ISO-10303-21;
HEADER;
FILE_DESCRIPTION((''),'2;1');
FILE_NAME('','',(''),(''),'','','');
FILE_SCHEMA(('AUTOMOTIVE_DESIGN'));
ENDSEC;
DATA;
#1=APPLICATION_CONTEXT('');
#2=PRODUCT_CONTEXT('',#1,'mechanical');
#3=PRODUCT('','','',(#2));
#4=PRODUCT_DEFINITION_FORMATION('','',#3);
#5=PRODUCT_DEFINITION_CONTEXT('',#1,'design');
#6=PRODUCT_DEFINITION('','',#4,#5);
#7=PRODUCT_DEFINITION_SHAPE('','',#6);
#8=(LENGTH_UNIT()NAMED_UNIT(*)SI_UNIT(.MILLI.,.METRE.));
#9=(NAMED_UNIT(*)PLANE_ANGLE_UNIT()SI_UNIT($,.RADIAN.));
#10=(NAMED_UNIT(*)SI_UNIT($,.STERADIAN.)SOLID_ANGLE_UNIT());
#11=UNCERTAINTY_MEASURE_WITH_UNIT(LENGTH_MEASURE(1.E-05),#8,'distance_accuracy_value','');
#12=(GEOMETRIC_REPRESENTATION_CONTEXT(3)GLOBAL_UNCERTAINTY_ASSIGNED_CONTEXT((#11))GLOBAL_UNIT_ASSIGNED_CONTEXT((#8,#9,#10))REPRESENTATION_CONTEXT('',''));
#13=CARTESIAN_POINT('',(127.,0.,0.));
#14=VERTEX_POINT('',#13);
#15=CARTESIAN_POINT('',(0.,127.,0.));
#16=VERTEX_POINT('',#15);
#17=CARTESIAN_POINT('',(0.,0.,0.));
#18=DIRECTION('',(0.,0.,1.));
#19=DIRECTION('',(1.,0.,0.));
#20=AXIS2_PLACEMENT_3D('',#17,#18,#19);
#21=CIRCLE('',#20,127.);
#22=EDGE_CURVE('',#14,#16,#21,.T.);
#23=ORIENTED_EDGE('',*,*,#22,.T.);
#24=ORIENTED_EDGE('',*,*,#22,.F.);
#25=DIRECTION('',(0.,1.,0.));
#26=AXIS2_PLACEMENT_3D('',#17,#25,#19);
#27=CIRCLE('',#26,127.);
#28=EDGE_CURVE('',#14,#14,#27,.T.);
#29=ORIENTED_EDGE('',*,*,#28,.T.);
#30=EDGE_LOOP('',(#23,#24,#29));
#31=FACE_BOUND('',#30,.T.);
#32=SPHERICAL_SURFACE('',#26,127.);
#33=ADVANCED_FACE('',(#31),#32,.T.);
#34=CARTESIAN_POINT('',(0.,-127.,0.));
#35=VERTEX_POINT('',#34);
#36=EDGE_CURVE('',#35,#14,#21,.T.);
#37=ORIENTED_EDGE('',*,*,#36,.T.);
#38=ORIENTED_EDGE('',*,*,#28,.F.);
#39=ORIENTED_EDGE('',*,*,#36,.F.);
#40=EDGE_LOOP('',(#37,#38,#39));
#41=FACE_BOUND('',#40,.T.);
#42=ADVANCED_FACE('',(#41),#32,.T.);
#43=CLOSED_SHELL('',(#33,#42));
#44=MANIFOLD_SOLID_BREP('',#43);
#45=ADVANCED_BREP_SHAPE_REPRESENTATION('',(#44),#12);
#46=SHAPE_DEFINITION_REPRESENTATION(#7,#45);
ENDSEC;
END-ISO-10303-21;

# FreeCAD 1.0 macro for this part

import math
import FreeCAD as App
import Part
import Sketcher

V = App.Vector
Q = App.Units.Quantity

doc = App.newDocument("Part")
body = doc.addObject("PartDesign::Body", "Body")

sketch1 = body.newObject("Sketcher::SketchObject", "Sketch")
sketch1.AttachmentSupport = (doc.getObject("XY_Plane"), [""])
sketch1.MapMode = "FlatFace"
sketch1.addGeometry([
    Part.ArcOfCircle(Part.Circle(V(0, 0, 0), V(0, 0, 1), 127), math.radians(-90), math.radians(90)),
    Part.LineSegment(V(0, 127, 0), V(0, -127, 0)),
], False)
sketch1.addConstraint([
    Sketcher.Constraint("Coincident", 0, 1, 1, 2),
    Sketcher.Constraint("Coincident", 1, 1, 0, 2),
    Sketcher.Constraint("Vertical", 1),
    Sketcher.Constraint("Coincident", 0, 3, -1, 1),
    Sketcher.Constraint("PointOnObject", 0, 1, -2),
    Sketcher.Constraint("Radius", 0, Q("5 in")),
])
revolution = body.newObject("PartDesign::Revolution", "Revolution")
revolution.Profile = sketch1
revolution.ReferenceAxis = (sketch1, ["V_Axis"])
revolution.Angle = 360

doc.recompute()
